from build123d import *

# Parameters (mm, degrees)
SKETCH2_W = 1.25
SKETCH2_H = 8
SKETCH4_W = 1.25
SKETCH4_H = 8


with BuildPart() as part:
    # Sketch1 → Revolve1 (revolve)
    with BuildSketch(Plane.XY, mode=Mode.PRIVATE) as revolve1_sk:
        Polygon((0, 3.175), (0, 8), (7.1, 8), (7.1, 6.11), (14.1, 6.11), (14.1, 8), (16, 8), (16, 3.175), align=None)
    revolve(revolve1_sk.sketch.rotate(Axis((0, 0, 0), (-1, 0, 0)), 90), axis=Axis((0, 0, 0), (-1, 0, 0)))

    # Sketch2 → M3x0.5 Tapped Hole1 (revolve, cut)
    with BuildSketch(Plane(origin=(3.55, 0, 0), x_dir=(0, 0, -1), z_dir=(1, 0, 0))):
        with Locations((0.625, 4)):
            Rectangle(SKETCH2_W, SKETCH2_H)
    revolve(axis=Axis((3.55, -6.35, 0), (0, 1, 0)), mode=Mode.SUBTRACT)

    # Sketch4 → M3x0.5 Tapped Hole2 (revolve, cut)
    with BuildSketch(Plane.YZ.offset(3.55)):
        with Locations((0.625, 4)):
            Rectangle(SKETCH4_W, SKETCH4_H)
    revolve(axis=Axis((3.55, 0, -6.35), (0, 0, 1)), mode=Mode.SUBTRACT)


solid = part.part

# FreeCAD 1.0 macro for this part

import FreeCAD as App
import Part
import Sketcher

V = App.Vector


def add_polygon(sketch, points):
    """Adds a closed chain of lines whose ends are joined by coincident constraints."""
    first, n = sketch.GeometryCount, len(points)
    for a, b in zip(points, points[1:] + points[:1]):
        sketch.addGeometry(Part.LineSegment(App.Vector(*a, 0), App.Vector(*b, 0)), False)
    for i in range(n):
        sketch.addConstraint(Sketcher.Constraint("Coincident", first + i, 2, first + (i + 1) % n, 1))

doc = App.newDocument("Part")
body = doc.addObject("PartDesign::Body", "Body")

# Sketch on XY plane
sketch1 = body.newObject("Sketcher::SketchObject", "Sketch")
sketch1.AttachmentSupport = (doc.getObject("XY_Plane"), [""])
sketch1.MapMode = "FlatFace"
add_polygon(sketch1, [(0, 8), (0, 3.175), (16, 3.175), (16, 8), (14.1, 8), (14.1, 6.11), (7.1, 6.11), (7.1, 8)])  # lines 0-7
sketch1.addConstraint([
    Sketcher.Constraint("Vertical", 0),
    Sketcher.Constraint("Horizontal", 1),
    Sketcher.Constraint("Vertical", 2),
    Sketcher.Constraint("Horizontal", 3),
    Sketcher.Constraint("Vertical", 4),
    Sketcher.Constraint("Horizontal", 5),
    Sketcher.Constraint("Vertical", 6),
    Sketcher.Constraint("Horizontal", 7),
    Sketcher.Constraint("PointOnObject", 0, 2, -2),
    Sketcher.Constraint("Horizontal", 3, 2, 6, 2),
    Sketcher.Constraint("DistanceX", 1, 1, 1, 2, 16.0),
    Sketcher.Constraint("DistanceX", 5, 2, 5, 1, 7.0),
    Sketcher.Constraint("DistanceX", 3, 2, 3, 1, 1.9),
    Sketcher.Constraint("DistanceY", -1, 1, 2, 2, 8.0),
    Sketcher.Constraint("DistanceY", 4, 2, 4, 1, 1.89),
    Sketcher.Constraint("DistanceY", 0, 2, 0, 1, 4.825),
])
revolution = body.newObject("PartDesign::Revolution", "Revolution")
revolution.Profile = sketch1
revolution.ReferenceAxis = (sketch1, ["H_Axis"])
revolution.Angle = 360

# Sketch on YZ plane
sketch2 = body.newObject("Sketcher::SketchObject", "Sketch001")
sketch2.AttachmentSupport = (doc.getObject("YZ_Plane"), [""])
sketch2.MapMode = "FlatFace"
sketch2.AttachmentOffset = App.Placement(V(0, 0, 3.55), App.Rotation())
add_polygon(sketch2, [(8, 0), (0, 0), (0, -1.25), (8, -1.25)])  # lines 0-3
sketch2.addConstraint([
    Sketcher.Constraint("Horizontal", 0),
    Sketcher.Constraint("Vertical", 1),
    Sketcher.Constraint("Horizontal", 2),
    Sketcher.Constraint("Vertical", 3),
    Sketcher.Constraint("Coincident", 0, 2, -1, 1),
    Sketcher.Constraint("DistanceX", 0, 2, 0, 1, 8.0),
    Sketcher.Constraint("DistanceY", 1, 2, 1, 1, 1.25),
])
groove = body.newObject("PartDesign::Groove", "Groove")
groove.Profile = sketch2
groove.ReferenceAxis = (sketch2, ["H_Axis"])
groove.Angle = 360

# Sketch on YZ plane
sketch3 = body.newObject("Sketcher::SketchObject", "Sketch002")
sketch3.AttachmentSupport = (doc.getObject("YZ_Plane"), [""])
sketch3.MapMode = "FlatFace"
sketch3.AttachmentOffset = App.Placement(V(0, 0, 3.55), App.Rotation())
add_polygon(sketch3, [(0, 8), (0, 0), (1.25, 0), (1.25, 8)])  # lines 0-3
sketch3.addConstraint([
    Sketcher.Constraint("Vertical", 0),
    Sketcher.Constraint("Horizontal", 1),
    Sketcher.Constraint("Vertical", 2),
    Sketcher.Constraint("Horizontal", 3),
    Sketcher.Constraint("Coincident", 0, 2, -1, 1),
    Sketcher.Constraint("DistanceY", 0, 2, 0, 1, 8.0),
    Sketcher.Constraint("DistanceX", 1, 1, 1, 2, 1.25),
])
groove2 = body.newObject("PartDesign::Groove", "Groove001")
groove2.Profile = sketch3
groove2.ReferenceAxis = (sketch3, ["V_Axis"])
groove2.Angle = 360

doc.recompute()
